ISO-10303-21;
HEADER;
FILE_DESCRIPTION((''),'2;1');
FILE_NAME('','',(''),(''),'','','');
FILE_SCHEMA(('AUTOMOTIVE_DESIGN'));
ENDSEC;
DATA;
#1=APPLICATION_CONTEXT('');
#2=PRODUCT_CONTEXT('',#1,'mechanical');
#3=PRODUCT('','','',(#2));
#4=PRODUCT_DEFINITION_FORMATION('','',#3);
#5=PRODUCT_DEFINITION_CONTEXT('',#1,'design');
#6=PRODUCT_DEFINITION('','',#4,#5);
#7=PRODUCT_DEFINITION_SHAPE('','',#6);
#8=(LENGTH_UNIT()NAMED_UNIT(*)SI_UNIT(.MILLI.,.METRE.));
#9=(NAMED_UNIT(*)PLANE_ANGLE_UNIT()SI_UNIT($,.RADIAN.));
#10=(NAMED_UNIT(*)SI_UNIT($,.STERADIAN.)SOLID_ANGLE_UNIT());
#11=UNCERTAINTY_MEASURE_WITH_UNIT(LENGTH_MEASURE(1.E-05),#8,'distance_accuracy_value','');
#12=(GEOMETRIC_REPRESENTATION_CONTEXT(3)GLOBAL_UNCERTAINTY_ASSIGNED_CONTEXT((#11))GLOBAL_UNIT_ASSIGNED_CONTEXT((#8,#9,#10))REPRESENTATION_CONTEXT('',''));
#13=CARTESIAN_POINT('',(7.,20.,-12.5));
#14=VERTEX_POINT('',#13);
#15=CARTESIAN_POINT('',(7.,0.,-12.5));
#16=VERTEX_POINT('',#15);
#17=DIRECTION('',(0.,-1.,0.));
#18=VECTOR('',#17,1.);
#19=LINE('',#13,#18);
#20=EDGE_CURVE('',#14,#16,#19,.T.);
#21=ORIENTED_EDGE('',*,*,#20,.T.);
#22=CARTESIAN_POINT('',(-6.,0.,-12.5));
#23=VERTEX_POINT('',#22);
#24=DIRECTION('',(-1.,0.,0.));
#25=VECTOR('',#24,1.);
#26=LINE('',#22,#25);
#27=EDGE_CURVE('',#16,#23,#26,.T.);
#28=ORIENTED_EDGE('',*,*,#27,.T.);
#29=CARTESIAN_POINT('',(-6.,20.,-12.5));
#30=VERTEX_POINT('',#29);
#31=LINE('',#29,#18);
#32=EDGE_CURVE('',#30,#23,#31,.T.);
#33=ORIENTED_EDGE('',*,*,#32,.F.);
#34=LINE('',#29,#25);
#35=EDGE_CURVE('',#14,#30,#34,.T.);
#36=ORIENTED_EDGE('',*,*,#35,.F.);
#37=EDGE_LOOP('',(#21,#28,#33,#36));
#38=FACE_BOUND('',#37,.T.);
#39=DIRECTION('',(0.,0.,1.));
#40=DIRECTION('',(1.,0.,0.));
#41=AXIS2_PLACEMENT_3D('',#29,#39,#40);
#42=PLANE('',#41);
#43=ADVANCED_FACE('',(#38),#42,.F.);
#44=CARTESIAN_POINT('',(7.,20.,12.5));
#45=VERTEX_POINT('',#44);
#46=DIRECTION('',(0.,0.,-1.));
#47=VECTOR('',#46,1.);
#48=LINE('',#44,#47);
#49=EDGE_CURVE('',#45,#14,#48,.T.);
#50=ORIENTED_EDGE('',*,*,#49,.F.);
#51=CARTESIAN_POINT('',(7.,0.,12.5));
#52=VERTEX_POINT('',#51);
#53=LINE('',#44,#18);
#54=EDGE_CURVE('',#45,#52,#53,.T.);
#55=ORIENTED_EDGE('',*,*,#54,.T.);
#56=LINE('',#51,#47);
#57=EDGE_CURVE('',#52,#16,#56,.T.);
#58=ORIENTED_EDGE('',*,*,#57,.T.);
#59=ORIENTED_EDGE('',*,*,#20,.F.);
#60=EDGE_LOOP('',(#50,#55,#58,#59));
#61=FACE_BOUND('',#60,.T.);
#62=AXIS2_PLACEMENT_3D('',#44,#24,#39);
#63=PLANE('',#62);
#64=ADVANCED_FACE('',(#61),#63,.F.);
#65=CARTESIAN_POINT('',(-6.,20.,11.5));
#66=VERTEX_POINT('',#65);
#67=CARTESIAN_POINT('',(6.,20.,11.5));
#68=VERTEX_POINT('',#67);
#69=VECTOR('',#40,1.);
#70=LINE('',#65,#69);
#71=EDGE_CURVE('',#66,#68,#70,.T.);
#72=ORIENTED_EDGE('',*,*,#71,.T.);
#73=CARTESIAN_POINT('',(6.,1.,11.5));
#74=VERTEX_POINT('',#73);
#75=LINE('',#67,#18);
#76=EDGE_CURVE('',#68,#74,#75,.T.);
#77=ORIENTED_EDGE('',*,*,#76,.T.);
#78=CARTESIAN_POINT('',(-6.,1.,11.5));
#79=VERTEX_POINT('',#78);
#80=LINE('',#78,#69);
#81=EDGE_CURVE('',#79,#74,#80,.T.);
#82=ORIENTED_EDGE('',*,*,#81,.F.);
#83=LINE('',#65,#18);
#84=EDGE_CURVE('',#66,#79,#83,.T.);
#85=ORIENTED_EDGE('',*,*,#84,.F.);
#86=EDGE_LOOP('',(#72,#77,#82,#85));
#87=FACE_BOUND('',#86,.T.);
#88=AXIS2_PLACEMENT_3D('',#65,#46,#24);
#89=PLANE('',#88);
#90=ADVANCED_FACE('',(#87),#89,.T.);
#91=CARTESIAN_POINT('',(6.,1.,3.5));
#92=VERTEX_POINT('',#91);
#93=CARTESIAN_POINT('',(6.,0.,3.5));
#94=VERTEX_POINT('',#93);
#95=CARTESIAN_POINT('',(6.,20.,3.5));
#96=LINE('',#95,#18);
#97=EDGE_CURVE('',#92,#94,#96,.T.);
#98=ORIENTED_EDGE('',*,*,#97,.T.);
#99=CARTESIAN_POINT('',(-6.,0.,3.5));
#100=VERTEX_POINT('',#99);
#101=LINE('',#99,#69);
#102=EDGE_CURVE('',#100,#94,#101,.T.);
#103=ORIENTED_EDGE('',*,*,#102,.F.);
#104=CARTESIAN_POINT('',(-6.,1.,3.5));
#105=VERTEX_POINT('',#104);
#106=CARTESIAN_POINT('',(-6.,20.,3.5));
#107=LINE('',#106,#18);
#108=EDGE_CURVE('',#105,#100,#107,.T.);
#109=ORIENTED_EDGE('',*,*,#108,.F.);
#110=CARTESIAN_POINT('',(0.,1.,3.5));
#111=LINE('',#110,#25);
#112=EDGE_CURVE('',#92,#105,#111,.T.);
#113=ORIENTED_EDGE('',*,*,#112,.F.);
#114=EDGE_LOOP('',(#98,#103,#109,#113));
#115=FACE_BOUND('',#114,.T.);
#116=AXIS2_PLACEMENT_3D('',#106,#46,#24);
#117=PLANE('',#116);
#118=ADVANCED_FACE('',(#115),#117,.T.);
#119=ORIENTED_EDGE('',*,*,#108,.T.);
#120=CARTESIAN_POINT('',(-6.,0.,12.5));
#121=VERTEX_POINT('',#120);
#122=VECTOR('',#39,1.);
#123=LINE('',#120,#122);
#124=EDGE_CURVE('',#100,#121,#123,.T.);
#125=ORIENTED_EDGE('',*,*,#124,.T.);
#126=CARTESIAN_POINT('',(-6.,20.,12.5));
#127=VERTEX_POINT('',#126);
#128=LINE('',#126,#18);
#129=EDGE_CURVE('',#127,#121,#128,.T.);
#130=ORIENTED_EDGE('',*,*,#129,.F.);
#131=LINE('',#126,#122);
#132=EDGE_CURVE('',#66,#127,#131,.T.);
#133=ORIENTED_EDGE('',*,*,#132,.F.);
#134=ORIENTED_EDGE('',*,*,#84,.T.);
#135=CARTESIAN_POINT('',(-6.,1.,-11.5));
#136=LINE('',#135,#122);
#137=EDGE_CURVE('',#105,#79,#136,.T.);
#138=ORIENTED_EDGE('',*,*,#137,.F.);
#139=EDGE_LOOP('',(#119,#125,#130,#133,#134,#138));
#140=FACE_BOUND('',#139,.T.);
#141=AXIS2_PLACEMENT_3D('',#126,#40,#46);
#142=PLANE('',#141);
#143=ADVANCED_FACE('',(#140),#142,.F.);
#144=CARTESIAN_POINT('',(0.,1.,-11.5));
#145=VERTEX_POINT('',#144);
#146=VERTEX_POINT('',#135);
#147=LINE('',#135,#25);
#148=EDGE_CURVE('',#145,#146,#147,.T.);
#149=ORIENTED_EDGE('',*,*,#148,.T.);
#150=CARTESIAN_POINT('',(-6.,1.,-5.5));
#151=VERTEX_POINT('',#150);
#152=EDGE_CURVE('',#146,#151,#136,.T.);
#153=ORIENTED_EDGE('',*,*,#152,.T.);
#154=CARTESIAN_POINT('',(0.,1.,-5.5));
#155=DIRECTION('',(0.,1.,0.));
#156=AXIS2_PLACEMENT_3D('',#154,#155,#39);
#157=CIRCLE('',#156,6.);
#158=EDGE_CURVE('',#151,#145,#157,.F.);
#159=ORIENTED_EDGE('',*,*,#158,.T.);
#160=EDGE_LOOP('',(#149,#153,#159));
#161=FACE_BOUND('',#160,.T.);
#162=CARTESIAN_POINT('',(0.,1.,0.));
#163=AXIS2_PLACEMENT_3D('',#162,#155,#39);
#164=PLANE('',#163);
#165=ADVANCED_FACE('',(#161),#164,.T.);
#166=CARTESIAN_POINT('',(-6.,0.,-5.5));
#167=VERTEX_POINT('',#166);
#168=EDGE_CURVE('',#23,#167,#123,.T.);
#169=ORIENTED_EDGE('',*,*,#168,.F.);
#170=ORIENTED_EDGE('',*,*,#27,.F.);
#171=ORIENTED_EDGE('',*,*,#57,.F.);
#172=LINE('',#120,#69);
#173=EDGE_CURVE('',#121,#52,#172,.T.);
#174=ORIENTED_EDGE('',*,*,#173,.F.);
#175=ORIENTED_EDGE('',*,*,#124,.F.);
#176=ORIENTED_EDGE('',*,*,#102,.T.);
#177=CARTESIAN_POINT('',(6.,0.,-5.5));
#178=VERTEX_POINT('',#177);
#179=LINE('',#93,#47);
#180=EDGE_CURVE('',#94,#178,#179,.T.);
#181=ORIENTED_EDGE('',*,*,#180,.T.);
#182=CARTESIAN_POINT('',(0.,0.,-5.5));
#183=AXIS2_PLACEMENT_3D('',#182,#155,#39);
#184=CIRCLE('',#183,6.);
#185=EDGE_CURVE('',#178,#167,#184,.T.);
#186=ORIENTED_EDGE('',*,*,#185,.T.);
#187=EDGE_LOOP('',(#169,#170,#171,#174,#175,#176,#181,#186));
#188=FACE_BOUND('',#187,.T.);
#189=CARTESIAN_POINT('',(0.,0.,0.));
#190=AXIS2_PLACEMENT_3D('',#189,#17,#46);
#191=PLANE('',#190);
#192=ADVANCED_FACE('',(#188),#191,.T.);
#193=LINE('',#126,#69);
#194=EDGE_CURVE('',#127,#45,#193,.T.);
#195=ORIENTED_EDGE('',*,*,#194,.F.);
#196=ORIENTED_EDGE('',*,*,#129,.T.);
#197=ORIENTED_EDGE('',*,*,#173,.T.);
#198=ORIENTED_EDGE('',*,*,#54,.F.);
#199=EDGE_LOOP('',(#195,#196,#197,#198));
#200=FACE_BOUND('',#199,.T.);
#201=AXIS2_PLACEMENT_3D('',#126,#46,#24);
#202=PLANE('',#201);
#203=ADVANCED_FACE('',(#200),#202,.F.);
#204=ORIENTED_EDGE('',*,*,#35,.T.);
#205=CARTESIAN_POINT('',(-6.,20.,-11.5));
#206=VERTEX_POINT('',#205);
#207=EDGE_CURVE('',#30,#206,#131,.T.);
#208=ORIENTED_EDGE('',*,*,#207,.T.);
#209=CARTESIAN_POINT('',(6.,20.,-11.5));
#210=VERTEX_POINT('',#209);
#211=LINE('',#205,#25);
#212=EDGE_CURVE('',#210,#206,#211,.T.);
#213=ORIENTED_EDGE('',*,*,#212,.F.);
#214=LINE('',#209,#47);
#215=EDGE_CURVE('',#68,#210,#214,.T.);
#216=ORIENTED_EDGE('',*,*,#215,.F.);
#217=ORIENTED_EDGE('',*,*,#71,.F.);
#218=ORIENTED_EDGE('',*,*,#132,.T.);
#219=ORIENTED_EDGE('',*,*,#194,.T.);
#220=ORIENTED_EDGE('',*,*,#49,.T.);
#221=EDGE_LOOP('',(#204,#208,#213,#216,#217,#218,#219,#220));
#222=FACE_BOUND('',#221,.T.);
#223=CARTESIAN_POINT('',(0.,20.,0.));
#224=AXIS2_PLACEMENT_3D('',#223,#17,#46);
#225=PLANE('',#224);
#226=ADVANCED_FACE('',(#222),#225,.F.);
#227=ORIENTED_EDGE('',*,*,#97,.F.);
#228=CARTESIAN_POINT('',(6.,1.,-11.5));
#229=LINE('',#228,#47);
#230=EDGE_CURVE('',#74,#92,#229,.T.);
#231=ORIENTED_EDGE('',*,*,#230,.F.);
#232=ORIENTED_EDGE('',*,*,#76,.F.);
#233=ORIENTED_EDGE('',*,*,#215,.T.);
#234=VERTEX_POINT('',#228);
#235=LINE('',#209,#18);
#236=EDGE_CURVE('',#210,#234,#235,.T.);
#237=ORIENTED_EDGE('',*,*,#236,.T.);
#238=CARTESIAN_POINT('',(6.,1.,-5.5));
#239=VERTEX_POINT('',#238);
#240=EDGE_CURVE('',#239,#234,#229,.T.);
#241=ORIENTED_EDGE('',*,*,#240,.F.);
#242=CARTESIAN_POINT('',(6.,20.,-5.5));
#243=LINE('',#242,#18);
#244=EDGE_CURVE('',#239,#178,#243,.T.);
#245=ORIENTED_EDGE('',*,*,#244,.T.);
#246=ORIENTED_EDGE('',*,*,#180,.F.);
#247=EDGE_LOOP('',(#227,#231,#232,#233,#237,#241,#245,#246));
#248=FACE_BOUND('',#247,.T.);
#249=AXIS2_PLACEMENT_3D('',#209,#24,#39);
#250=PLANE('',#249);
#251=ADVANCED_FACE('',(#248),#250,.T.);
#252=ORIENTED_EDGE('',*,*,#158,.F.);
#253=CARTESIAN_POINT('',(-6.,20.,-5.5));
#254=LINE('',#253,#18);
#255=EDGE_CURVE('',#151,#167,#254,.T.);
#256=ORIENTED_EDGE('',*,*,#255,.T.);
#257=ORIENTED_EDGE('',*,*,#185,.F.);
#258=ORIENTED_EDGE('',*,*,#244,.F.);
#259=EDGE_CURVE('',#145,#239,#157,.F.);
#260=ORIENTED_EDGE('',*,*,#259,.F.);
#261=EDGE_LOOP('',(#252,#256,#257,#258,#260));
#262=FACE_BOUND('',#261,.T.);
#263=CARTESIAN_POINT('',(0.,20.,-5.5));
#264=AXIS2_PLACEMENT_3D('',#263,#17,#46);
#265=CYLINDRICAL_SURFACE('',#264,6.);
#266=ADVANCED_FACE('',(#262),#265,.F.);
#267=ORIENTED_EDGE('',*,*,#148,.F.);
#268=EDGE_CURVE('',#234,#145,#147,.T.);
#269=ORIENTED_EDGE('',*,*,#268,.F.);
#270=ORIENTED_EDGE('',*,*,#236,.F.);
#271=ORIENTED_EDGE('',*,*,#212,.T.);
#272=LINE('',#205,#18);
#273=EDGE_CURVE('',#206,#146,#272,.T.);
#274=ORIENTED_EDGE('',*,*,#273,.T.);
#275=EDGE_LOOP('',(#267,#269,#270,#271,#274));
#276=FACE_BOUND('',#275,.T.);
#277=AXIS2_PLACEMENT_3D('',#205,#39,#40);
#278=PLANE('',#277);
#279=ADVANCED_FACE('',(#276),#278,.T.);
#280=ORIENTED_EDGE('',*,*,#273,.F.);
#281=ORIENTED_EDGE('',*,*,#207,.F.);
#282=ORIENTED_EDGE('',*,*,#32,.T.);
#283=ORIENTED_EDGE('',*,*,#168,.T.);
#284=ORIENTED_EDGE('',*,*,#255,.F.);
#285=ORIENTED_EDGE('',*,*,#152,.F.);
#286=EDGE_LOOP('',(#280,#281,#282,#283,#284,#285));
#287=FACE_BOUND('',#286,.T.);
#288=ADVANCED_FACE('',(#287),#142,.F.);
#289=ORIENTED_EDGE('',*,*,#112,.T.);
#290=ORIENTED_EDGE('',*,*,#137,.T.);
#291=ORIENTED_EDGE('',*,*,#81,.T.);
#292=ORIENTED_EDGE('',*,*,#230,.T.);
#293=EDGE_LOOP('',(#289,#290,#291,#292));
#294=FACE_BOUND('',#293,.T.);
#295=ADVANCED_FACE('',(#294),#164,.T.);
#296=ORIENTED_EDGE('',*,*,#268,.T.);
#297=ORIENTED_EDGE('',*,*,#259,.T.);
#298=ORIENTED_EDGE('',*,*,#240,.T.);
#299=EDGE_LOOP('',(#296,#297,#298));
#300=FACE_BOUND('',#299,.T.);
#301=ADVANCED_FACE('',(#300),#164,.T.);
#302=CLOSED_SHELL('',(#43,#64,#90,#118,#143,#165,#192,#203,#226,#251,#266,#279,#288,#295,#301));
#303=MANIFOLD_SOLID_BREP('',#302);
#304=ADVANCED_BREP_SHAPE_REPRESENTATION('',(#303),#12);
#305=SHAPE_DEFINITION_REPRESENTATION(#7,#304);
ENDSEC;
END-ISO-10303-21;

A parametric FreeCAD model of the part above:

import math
import FreeCAD as App
import Part
import Sketcher
from FreeCAD import Vector
Q = App.Units.Quantity

doc = App.newDocument("Part")
body = doc.addObject("PartDesign::Body", "Body")

# Sketch on XZ plane
sketch1 = body.newObject("Sketcher::SketchObject", "Sketch")
sketch1.AttachmentSupport = (doc.getObject("XZ_Plane"), [""])
sketch1.MapMode = "FlatFace"
sketch1.addGeometry([
    Part.LineSegment(Vector(-6, -12, 0), Vector(-6, 12, 0)),
    Part.LineSegment(Vector(-6, 12, 0), Vector(7, 12, 0)),
    Part.LineSegment(Vector(7, 12, 0), Vector(7, -12, 0)),
    Part.LineSegment(Vector(7, -12, 0), Vector(-6, -12, 0)),
], False)
sketch1.addConstraint([
    Sketcher.Constraint("Coincident", 0, 2, 1, 1),
    Sketcher.Constraint("Coincident", 1, 2, 2, 1),
    Sketcher.Constraint("Coincident", 2, 2, 3, 1),
    Sketcher.Constraint("Coincident", 3, 2, 0, 1),
    Sketcher.Constraint("Vertical", 0),
    Sketcher.Constraint("Horizontal", 1),
    Sketcher.Constraint("Vertical", 2),
    Sketcher.Constraint("Horizontal", 3),
    Sketcher.Constraint("DistanceX", 1, 1, 1, 2, Q("13 mm")),
    Sketcher.Constraint("DistanceY", 0, 1, 0, 2, Q("25 mm")),
    Sketcher.Constraint("DistanceX", 0, 2, -1, 1, Q("6 mm")),
    Sketcher.Constraint("DistanceY", -1, 1, 0, 2, Q("12.5 mm")),
])
pad1 = body.newObject("PartDesign::Pad", "Pad")
pad1.Profile = sketch1
pad1.Length = 20
pad1.Reversed = True

# Sketch on XZ plane
sketch2 = body.newObject("Sketcher::SketchObject", "Sketch001")
sketch2.AttachmentSupport = (doc.getObject("XZ_Plane"), [""])
sketch2.MapMode = "FlatFace"
sketch2.AttachmentOffset = App.Placement(Vector(0, 0, -1), App.Rotation())
sketch2.addGeometry([
    Part.LineSegment(Vector(-6, -12, 0), Vector(-6, 12, 0)),
    Part.LineSegment(Vector(-6, 12, 0), Vector(6, 12, 0)),
    Part.LineSegment(Vector(6, 12, 0), Vector(6, -12, 0)),
    Part.LineSegment(Vector(6, -12, 0), Vector(-6, -12, 0)),
], False)
sketch2.addConstraint([
    Sketcher.Constraint("Coincident", 0, 2, 1, 1),
    Sketcher.Constraint("Coincident", 1, 2, 2, 1),
    Sketcher.Constraint("Coincident", 2, 2, 3, 1),
    Sketcher.Constraint("Coincident", 3, 2, 0, 1),
    Sketcher.Constraint("Vertical", 0),
    Sketcher.Constraint("Horizontal", 1),
    Sketcher.Constraint("Vertical", 2),
    Sketcher.Constraint("Horizontal", 3),
    Sketcher.Constraint("Symmetric", 0, 2, 2, 2, -1, 1),
    Sketcher.Constraint("DistanceX", 1, 1, 1, 2, Q("12 mm")),
    Sketcher.Constraint("DistanceY", 0, 1, 0, 2, Q("23 mm")),
])
pocket1 = body.newObject("PartDesign::Pocket", "Pocket")
pocket1.Profile = sketch2
pocket1.Type = "ThroughAll"

# Sketch on XZ plane
sketch3 = body.newObject("Sketcher::SketchObject", "Sketch002")
sketch3.AttachmentSupport = (doc.getObject("XZ_Plane"), [""])
sketch3.MapMode = "FlatFace"
sketch3.addGeometry([
    Part.LineSegment(Vector(-6, 4, 0), Vector(6, 4, 0)),
    Part.LineSegment(Vector(6, 4, 0), Vector(6, -6, 0)),
    Part.ArcOfCircle(Part.Circle(Vector(0, -6, 0), Vector(0, 0, 1), 6), math.radians(180), math.radians(360)),
    Part.LineSegment(Vector(-6, -6, 0), Vector(-6, 4, 0)),
], False)
sketch3.addConstraint([
    Sketcher.Constraint("Coincident", 0, 2, 1, 1),
    Sketcher.Constraint("Tangent", 1, 2, 2, 2),
    Sketcher.Constraint("Tangent", 2, 1, 3, 1),
    Sketcher.Constraint("Coincident", 3, 2, 0, 1),
    Sketcher.Constraint("Horizontal", 0),
    Sketcher.Constraint("Vertical", 1),
    Sketcher.Constraint("Vertical", 3),
    Sketcher.Constraint("PointOnObject", 2, 3, -2),
    Sketcher.Constraint("Radius", 2, Q("6 mm")),
    Sketcher.Constraint("DistanceY", 1, 2, 1, 1, Q("9 mm")),
    Sketcher.Constraint("DistanceY", 2, 3, -1, 1, Q("5.5 mm")),
])
pocket2 = body.newObject("PartDesign::Pocket", "Pocket001")
pocket2.Profile = sketch3
pocket2.Type = "ThroughAll"

doc.recompute()
